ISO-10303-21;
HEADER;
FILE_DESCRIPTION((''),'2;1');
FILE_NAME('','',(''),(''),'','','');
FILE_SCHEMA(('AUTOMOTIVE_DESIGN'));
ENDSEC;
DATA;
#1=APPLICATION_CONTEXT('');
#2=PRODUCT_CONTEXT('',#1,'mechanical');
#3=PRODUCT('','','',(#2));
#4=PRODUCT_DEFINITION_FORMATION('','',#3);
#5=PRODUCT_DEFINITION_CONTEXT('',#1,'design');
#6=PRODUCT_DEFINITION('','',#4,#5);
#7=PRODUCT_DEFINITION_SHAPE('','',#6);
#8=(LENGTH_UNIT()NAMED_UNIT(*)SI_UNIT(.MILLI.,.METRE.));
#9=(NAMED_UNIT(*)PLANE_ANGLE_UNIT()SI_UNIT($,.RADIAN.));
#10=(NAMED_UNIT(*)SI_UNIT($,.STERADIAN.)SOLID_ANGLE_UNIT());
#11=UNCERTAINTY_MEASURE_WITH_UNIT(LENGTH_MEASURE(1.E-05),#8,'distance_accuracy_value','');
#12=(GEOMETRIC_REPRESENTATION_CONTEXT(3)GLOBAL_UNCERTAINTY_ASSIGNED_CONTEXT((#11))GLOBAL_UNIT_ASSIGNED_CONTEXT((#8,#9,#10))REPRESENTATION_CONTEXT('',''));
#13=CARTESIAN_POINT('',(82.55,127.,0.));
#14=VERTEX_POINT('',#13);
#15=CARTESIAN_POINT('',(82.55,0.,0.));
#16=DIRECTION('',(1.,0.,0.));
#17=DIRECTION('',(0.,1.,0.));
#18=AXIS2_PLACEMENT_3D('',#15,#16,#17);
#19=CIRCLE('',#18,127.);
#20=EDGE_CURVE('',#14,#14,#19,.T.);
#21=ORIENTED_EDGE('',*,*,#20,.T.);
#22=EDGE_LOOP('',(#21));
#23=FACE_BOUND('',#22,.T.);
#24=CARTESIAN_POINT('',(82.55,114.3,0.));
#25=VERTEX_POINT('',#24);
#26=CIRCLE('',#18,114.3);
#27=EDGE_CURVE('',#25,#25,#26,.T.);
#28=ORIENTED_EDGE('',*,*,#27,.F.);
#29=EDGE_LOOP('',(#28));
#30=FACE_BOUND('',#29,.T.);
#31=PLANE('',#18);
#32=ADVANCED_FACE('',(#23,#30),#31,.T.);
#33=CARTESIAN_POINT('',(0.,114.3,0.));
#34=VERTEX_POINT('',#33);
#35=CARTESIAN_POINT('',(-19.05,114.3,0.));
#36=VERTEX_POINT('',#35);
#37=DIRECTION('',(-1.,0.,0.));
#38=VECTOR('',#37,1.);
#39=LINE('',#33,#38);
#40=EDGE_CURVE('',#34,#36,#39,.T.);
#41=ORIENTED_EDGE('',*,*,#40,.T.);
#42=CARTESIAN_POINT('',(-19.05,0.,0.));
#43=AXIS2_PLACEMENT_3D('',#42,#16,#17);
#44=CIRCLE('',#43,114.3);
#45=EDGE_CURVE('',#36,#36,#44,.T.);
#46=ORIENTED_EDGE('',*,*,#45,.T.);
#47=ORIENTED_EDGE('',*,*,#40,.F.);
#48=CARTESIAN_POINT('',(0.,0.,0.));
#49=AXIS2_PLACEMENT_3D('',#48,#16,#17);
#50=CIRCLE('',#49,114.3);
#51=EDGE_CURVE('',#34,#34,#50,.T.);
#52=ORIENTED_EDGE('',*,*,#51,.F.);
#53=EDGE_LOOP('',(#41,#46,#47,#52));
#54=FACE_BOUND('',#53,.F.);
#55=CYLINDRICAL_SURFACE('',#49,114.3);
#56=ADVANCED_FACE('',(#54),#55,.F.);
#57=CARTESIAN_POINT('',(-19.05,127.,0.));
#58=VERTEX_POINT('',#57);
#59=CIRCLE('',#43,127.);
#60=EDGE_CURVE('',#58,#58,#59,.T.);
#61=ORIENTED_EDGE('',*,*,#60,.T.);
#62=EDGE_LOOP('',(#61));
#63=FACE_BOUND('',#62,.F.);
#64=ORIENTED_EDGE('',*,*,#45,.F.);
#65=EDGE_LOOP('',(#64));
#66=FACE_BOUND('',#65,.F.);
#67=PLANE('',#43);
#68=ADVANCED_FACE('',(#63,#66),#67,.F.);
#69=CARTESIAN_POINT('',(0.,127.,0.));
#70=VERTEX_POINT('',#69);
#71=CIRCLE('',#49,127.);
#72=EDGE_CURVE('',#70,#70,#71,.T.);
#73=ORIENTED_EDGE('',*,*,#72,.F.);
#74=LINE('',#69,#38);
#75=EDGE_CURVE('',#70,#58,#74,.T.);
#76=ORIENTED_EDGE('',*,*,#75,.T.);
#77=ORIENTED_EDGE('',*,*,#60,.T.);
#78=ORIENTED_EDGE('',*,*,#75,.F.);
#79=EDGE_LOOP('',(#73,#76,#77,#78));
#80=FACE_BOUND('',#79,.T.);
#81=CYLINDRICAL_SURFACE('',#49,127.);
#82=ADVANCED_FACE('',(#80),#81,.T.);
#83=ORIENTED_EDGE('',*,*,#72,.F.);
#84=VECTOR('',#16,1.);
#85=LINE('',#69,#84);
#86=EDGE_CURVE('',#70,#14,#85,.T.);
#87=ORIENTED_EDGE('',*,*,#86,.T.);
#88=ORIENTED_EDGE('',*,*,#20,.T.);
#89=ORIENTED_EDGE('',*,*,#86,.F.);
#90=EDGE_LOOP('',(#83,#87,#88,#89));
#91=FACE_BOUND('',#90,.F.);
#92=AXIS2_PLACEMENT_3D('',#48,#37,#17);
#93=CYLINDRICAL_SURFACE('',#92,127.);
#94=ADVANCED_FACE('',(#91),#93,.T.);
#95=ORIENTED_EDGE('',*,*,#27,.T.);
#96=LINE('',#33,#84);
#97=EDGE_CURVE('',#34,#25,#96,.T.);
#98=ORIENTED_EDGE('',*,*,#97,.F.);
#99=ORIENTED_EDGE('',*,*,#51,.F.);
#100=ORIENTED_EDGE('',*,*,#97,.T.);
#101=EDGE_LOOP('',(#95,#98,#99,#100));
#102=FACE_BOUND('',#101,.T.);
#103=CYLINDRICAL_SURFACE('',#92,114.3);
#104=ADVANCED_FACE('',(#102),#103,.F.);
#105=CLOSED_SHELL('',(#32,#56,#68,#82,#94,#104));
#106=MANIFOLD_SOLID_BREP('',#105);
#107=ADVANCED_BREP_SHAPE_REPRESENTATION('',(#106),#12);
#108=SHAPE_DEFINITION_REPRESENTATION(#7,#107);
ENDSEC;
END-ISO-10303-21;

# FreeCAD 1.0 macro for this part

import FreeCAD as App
import Part
import Sketcher

V = App.Vector
Q = App.Units.Quantity

doc = App.newDocument("Part")
body = doc.addObject("PartDesign::Body", "Body")

# Sketch on YZ plane
sketch1 = body.newObject("Sketcher::SketchObject", "Sketch")
sketch1.AttachmentSupport = (doc.getObject("YZ_Plane"), [""])
sketch1.MapMode = "FlatFace"
sketch1.addGeometry([
    Part.Circle(V(0, 0, 0), V(0, 0, 1), 127),
    Part.Circle(V(0, 0, 0), V(0, 0, 1), 114.3),
], False)
sketch1.addConstraint([
    Sketcher.Constraint("Coincident", 0, 3, -1, 1),
    Sketcher.Constraint("Coincident", 1, 3, -1, 1),
    Sketcher.Constraint("Diameter", 0, Q("10 in")),
    Sketcher.Constraint("Diameter", 1, Q("9 in")),
])
pad1 = body.newObject("PartDesign::Pad", "Pad")
pad1.Profile = sketch1
pad1.Type = "TwoLengths"
pad1.Length = Q("3.25 in")
pad1.Length2 = Q("0.75 in")

doc.recompute()
